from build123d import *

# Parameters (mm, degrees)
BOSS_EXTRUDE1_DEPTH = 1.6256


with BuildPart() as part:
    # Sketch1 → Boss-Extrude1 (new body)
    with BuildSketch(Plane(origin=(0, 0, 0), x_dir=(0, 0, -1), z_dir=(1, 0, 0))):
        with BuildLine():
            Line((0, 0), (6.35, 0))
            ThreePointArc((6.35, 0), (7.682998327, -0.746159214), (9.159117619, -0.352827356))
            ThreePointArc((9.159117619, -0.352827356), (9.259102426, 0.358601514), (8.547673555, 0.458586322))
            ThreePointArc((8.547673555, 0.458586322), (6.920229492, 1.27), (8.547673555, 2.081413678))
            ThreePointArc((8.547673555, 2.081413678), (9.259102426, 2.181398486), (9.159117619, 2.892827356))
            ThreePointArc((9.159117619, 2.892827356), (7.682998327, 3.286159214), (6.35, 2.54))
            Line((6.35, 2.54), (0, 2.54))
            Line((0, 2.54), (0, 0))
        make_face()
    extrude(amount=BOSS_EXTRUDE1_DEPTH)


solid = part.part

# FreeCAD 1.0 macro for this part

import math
import FreeCAD as App
import Part
import Sketcher
Q = App.Units.Quantity

doc = App.newDocument("Part")
body = doc.addObject("PartDesign::Body", "Body")

sketch1 = body.newObject("Sketcher::SketchObject", "Sketch")
sketch1.AttachmentSupport = (doc.getObject("YZ_Plane"), [""])
sketch1.MapMode = "FlatFace"
sketch1.addGeometry(Part.LineSegment(App.Vector(0, 0, 0), App.Vector(0, -6.3, 0)), False)
sketch1.addGeometry(Part.ArcOfCircle(Part.Circle(App.Vector(1.3, -7.9, 0), App.Vector(0, 0, 1), 2), math.radians(129), math.radians(217)), False)
sketch1.addGeometry(Part.ArcOfCircle(Part.Circle(App.Vector(0.1, -8.9, 0), App.Vector(0, 0, 1), 0.5), math.radians(-143), math.radians(37)), False)
sketch1.addGeometry(Part.ArcOfCircle(Part.Circle(App.Vector(1.3, -7.9, 0), App.Vector(0, 0, 1), 1), math.radians(-37), math.radians(217)), False)
sketch1.addGeometry(Part.ArcOfCircle(Part.Circle(App.Vector(2.5, -8.9, 0), App.Vector(0, 0, 1), 0.5), math.radians(143), math.radians(323)), False)
sketch1.addGeometry(Part.ArcOfCircle(Part.Circle(App.Vector(1.3, -7.9, 0), App.Vector(0, 0, 1), 2), math.radians(-37), math.radians(51)), False)
sketch1.addGeometry(Part.LineSegment(App.Vector(2.5, -6.3, 0), App.Vector(2.5, 0, 0)), False)
sketch1.addGeometry(Part.LineSegment(App.Vector(2.5, 0, 0), App.Vector(0, 0, 0)), False)
sketch1.addConstraint(Sketcher.Constraint("Coincident", 0, 2, 1, 1))
sketch1.addConstraint(Sketcher.Constraint("Tangent", 1, 2, 2, 1))
sketch1.addConstraint(Sketcher.Constraint("Tangent", 2, 2, 3, 2))
sketch1.addConstraint(Sketcher.Constraint("Tangent", 3, 1, 4, 1))
sketch1.addConstraint(Sketcher.Constraint("Tangent", 4, 2, 5, 1))
sketch1.addConstraint(Sketcher.Constraint("Coincident", 5, 2, 6, 1))
sketch1.addConstraint(Sketcher.Constraint("Coincident", 6, 2, 7, 1))
sketch1.addConstraint(Sketcher.Constraint("Coincident", 7, 2, 0, 1))
sketch1.addConstraint(Sketcher.Constraint("Vertical", 0))
sketch1.addConstraint(Sketcher.Constraint("Vertical", 6))
sketch1.addConstraint(Sketcher.Constraint("Horizontal", 7))
sketch1.addConstraint(Sketcher.Constraint("Coincident", 7, 2, -1, 1))
sketch1.addConstraint(Sketcher.Constraint("Coincident", 3, 3, 1, 3))
sketch1.addConstraint(Sketcher.Constraint("Coincident", 5, 3, 1, 3))
sketch1.addConstraint(Sketcher.Constraint("Equal", 2, 4))
sketch1.addConstraint(Sketcher.Constraint("Horizontal", 2, 3, 4, 3))
sketch1.addConstraint(Sketcher.Constraint("Horizontal", 0, 2, 5, 2))
sketch1.addConstraint(Sketcher.Constraint("Radius", 1, Q("0.08 in")))
sketch1.addConstraint(Sketcher.Constraint("Radius", 2, Q("0.02 in")))
sketch1.addConstraint(Sketcher.Constraint("DistanceX", 7, 2, 7, 1, Q("0.1 in")))
sketch1.addConstraint(Sketcher.Constraint("DistanceY", 0, 2, 0, 1, Q("0.25 in")))
sketch1.addConstraint(Sketcher.Constraint("DistanceX", -1, 1, 2, 3, Q("0.052879 mm")))
pad1 = body.newObject("PartDesign::Pad", "Pad")
pad1.Profile = sketch1
pad1.Length = Q("0.064 in")

doc.recompute()
